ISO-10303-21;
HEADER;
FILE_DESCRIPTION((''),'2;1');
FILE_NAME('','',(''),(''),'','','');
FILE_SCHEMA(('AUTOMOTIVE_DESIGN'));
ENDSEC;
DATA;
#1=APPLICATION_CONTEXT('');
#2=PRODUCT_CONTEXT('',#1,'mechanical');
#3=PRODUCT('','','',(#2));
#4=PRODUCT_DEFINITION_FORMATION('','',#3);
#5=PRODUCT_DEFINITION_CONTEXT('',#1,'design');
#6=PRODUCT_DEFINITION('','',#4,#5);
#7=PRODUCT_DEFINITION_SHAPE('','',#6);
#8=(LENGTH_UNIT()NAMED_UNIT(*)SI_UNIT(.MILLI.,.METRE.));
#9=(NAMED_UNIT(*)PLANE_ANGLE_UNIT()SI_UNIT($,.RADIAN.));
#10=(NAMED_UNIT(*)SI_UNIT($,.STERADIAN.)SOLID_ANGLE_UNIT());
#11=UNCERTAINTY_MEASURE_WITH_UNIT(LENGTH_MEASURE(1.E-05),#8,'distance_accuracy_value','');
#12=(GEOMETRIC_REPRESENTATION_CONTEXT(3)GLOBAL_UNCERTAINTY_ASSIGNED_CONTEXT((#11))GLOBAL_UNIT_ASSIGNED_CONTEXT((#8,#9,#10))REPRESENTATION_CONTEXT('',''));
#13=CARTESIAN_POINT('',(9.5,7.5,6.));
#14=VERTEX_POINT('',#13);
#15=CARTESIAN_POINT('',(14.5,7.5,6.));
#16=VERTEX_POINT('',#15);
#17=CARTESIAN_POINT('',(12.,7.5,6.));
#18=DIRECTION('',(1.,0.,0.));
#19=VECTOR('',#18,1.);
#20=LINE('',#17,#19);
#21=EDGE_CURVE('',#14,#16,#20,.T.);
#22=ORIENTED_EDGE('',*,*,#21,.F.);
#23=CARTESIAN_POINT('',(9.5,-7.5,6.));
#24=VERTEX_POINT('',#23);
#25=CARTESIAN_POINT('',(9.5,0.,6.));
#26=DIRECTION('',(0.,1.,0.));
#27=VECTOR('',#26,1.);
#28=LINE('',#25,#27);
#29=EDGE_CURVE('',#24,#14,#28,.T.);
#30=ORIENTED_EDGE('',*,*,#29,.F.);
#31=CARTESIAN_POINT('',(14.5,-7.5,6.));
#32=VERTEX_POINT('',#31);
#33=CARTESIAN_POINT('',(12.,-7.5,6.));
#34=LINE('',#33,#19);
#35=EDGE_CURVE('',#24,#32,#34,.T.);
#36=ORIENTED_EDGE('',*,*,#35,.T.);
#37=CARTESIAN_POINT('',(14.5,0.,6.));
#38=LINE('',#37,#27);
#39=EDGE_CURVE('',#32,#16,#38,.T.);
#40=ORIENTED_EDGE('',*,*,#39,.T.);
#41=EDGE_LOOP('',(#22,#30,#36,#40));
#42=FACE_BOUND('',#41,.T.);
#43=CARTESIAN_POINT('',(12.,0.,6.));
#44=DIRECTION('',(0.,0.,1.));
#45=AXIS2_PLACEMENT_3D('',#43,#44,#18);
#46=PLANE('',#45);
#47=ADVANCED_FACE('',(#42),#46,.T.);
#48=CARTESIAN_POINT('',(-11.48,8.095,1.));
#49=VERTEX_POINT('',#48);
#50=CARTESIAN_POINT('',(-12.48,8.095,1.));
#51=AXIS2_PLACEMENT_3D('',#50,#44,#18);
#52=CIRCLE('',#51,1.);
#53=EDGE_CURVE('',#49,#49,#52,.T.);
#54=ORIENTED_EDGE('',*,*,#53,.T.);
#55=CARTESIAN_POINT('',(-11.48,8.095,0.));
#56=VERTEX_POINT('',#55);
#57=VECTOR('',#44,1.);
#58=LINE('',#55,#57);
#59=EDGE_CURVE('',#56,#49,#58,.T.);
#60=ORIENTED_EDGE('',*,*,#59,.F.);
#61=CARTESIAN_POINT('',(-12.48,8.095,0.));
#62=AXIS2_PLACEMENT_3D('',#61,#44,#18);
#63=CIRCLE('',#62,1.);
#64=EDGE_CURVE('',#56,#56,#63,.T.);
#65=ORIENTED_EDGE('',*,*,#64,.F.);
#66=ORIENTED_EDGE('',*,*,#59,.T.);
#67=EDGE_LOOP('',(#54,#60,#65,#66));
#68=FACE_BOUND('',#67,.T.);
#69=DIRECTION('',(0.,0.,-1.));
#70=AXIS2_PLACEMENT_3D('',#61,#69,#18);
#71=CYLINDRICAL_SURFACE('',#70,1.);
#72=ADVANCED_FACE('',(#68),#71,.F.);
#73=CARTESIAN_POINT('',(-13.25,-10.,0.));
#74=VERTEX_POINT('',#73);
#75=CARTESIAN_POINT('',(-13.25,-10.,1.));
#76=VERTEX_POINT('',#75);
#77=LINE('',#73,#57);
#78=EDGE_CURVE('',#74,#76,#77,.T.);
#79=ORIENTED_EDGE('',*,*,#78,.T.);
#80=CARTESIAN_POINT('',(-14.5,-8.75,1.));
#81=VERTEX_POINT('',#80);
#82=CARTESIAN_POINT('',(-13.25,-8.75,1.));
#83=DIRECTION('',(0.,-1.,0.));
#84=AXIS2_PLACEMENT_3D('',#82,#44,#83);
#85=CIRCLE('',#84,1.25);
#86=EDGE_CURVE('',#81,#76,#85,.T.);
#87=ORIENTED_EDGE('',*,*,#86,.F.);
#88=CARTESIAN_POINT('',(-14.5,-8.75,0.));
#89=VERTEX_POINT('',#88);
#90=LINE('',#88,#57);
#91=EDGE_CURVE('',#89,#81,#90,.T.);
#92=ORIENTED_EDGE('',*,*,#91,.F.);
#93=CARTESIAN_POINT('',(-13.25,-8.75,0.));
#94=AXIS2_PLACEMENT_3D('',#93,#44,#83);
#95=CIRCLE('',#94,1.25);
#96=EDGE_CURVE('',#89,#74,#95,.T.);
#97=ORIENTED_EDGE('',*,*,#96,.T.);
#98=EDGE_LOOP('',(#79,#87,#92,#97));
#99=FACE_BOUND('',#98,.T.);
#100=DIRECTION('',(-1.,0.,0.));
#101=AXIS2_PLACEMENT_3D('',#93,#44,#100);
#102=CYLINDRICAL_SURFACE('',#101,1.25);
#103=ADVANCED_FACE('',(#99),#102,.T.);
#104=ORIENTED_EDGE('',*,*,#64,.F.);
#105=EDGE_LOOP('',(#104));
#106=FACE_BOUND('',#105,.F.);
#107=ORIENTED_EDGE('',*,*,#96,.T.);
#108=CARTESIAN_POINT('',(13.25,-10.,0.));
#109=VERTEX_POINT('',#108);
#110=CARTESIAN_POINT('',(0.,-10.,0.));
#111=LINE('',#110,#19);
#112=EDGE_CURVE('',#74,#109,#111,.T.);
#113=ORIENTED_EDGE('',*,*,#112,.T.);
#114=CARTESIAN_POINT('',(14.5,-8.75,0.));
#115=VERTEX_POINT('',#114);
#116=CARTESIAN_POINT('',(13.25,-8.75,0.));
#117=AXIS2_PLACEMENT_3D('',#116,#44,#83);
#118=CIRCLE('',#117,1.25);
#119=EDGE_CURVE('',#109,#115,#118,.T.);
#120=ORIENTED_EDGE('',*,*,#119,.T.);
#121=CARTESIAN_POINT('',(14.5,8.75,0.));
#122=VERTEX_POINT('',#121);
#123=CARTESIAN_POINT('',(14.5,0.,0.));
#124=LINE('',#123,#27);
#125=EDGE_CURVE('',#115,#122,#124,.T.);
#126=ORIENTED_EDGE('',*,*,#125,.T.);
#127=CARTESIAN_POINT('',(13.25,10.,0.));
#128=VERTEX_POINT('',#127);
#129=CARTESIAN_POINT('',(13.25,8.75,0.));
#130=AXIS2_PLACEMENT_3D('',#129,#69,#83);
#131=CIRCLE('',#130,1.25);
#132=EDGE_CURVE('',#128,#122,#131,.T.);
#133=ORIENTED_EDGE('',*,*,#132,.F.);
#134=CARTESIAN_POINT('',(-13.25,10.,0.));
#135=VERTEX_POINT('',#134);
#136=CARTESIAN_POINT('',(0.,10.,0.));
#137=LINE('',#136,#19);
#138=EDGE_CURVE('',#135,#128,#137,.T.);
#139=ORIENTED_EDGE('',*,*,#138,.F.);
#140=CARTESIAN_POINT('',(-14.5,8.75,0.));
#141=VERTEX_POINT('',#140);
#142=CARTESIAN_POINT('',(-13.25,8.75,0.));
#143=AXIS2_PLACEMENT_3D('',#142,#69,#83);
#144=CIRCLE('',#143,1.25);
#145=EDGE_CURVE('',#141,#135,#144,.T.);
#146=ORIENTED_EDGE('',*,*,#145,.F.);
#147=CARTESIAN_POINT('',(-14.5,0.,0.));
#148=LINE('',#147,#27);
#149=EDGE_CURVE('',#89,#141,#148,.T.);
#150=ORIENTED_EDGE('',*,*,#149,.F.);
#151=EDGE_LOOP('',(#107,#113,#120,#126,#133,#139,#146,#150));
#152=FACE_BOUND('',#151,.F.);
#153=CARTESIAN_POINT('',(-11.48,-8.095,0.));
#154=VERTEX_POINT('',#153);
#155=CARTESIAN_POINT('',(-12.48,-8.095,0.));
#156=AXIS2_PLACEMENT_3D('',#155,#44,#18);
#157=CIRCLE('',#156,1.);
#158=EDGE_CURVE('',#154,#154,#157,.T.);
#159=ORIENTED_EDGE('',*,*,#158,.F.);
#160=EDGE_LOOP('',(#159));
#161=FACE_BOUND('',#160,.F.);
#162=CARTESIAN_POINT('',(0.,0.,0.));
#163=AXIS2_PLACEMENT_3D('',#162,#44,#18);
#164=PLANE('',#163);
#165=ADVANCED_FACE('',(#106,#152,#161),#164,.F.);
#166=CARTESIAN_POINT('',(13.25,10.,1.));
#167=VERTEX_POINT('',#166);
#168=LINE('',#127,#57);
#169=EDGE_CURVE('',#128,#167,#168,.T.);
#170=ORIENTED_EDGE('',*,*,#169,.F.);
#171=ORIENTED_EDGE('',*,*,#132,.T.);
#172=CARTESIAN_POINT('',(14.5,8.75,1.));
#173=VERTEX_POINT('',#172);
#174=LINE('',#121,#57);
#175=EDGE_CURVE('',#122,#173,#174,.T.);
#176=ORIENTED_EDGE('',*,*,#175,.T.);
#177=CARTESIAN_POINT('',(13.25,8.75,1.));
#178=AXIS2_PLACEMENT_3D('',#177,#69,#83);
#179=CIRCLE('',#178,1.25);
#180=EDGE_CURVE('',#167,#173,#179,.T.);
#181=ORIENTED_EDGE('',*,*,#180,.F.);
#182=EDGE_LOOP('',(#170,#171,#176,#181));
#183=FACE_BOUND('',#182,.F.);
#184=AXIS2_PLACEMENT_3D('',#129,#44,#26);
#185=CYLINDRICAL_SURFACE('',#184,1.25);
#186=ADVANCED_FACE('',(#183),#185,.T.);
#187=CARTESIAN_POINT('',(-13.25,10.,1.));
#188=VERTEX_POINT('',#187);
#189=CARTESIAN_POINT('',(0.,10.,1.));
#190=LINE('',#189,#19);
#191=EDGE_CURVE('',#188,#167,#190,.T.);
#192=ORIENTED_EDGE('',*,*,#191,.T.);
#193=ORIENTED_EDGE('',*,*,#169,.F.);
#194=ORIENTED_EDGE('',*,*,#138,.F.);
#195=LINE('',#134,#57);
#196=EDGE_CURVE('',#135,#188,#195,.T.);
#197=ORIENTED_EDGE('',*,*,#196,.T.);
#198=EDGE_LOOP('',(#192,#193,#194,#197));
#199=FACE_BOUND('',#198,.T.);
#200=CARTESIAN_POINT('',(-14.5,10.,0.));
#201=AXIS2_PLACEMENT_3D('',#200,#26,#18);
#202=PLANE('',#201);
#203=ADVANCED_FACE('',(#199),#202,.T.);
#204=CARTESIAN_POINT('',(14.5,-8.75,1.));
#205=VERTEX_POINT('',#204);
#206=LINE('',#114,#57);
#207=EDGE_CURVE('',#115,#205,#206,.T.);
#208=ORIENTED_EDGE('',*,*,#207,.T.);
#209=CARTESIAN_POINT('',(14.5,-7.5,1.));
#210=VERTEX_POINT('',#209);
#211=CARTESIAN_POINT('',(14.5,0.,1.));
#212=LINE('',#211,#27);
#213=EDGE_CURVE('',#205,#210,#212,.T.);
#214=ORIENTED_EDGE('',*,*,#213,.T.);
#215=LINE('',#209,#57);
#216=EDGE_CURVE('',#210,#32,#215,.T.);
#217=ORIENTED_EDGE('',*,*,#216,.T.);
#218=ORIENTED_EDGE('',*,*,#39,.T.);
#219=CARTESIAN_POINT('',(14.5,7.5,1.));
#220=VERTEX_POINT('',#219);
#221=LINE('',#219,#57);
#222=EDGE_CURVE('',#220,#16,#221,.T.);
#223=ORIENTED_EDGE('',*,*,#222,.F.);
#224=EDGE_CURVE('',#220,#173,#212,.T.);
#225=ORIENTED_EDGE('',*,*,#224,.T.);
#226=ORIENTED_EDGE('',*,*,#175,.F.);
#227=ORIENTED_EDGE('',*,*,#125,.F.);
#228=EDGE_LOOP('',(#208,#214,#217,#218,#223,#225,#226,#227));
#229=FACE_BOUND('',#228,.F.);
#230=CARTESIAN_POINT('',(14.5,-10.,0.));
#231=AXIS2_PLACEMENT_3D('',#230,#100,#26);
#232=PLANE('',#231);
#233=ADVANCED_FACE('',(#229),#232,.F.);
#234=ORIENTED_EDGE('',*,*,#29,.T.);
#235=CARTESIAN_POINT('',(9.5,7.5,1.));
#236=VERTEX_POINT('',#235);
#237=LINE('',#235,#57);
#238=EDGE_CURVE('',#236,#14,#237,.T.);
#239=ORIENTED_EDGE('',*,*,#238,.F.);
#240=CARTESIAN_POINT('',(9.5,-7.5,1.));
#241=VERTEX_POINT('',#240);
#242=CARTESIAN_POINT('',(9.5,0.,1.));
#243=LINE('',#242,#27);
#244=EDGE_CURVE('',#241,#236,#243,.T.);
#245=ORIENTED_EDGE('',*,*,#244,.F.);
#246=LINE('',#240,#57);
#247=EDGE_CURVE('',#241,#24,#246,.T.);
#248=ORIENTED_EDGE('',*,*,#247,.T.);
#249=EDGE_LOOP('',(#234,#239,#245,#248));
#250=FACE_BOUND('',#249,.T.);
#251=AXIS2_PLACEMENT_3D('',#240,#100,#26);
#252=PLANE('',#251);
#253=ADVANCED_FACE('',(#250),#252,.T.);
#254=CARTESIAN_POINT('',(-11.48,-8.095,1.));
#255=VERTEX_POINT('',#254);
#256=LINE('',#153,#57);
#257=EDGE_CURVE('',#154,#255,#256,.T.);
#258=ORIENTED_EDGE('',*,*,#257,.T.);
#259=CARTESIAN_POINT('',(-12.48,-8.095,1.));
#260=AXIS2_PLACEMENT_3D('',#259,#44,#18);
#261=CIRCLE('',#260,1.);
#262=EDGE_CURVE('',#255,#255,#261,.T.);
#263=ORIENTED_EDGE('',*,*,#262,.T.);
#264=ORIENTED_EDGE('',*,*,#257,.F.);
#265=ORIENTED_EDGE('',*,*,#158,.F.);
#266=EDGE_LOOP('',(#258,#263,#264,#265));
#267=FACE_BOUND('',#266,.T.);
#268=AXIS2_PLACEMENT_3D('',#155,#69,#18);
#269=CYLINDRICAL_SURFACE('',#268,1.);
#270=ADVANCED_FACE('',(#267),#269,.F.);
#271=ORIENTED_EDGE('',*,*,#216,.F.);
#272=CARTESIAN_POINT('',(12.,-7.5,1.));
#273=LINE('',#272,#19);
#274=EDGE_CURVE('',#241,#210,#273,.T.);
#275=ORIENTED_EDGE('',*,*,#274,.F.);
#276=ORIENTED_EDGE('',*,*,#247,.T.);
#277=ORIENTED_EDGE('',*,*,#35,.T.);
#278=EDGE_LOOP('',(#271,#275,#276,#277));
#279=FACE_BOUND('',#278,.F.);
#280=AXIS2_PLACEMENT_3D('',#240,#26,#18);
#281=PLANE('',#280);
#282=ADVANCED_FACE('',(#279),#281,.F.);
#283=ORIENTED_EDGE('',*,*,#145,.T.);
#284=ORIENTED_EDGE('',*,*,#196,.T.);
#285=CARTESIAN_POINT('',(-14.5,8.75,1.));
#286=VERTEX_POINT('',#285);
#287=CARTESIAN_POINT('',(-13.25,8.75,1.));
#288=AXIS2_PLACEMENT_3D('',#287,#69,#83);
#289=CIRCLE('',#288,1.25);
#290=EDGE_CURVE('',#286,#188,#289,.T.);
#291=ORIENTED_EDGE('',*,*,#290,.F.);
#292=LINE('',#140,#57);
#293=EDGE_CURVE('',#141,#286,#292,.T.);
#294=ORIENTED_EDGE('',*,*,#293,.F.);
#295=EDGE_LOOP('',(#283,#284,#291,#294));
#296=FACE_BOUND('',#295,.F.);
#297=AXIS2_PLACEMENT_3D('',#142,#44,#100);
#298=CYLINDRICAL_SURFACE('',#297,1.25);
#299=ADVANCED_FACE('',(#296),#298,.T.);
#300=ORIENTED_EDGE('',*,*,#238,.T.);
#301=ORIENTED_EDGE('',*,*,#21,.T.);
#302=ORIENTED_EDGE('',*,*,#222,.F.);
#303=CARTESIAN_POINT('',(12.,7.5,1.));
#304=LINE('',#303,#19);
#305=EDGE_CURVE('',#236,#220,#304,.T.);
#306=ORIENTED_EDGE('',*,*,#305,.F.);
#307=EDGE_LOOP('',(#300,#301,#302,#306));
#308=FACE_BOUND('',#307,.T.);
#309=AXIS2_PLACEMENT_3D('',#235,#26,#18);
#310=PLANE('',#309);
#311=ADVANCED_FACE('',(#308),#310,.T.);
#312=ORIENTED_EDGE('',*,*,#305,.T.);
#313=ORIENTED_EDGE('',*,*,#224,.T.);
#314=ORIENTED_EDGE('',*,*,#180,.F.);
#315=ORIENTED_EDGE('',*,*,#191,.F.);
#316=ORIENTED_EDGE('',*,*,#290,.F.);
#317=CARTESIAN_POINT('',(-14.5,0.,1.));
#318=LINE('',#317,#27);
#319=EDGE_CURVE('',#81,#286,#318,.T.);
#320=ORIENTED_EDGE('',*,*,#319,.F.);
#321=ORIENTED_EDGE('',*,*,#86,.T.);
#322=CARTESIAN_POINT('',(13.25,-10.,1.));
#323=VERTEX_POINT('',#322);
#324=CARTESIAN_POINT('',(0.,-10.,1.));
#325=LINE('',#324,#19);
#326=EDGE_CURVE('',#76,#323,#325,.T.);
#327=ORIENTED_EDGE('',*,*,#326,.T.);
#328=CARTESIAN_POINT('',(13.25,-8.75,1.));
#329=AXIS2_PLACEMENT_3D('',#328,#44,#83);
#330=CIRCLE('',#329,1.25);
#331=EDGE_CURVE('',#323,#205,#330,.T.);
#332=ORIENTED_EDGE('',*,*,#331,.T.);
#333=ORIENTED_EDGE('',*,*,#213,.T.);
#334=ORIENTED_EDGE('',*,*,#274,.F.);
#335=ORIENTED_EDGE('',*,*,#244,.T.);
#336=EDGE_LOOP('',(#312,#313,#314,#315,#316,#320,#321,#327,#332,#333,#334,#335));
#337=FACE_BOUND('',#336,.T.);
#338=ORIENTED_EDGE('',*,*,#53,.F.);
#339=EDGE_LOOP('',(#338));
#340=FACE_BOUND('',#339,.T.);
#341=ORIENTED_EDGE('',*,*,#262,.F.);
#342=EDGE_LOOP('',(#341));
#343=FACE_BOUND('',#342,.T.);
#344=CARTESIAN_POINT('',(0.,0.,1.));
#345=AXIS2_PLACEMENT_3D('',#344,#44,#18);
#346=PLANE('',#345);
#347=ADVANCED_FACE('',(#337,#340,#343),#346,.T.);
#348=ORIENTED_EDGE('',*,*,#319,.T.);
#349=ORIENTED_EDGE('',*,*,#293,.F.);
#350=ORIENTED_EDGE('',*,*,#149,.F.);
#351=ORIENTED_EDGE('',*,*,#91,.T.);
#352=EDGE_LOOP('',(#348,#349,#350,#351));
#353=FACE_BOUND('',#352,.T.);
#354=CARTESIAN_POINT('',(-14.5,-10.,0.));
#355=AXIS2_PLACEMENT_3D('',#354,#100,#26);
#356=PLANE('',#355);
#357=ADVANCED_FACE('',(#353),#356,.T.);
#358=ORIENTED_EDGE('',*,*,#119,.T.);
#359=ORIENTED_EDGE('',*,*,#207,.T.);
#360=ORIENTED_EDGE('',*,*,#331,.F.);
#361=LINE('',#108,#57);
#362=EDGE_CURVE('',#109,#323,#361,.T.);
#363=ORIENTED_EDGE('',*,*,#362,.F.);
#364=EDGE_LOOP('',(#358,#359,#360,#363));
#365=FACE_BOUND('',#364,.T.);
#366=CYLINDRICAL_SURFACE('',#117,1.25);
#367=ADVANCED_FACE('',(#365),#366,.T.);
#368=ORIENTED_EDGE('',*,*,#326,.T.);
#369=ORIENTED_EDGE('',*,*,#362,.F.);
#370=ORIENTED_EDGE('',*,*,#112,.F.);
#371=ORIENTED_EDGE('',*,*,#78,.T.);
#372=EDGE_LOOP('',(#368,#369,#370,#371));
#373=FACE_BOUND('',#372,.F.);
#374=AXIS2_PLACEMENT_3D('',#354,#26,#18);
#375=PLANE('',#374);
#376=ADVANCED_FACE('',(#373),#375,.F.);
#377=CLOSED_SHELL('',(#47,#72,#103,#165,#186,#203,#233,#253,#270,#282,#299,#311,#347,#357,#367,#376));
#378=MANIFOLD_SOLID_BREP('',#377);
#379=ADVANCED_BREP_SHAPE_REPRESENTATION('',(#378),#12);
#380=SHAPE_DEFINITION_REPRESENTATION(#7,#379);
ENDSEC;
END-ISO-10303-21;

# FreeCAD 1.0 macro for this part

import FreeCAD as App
import Part
import Sketcher
from FreeCAD import Vector


def edges_at(feature, points):
    """Names of the edges that pass closest to the given points."""
    edges = feature.Shape.Edges
    near = lambda p: min(range(len(edges)), key=lambda i: edges[i].distToShape(Part.Vertex(*p))[0])
    return sorted({f"Edge{near(p) + 1}" for p in points})

doc = App.newDocument("Part")
body = doc.addObject("PartDesign::Body", "Body")

# Sketch on XY plane
sketch1 = body.newObject("Sketcher::SketchObject", "Sketch")
sketch1.AttachmentSupport = (doc.getObject("XY_Plane"), [""])
sketch1.MapMode = "FlatFace"
sketch1.addGeometry(Part.LineSegment(Vector(-14.5, 10, 0), Vector(-14.5, -10, 0)), False)
sketch1.addGeometry(Part.LineSegment(Vector(-14.5, -10, 0), Vector(14.5, -10, 0)), False)
sketch1.addGeometry(Part.LineSegment(Vector(14.5, -10, 0), Vector(14.5, 10, 0)), False)
sketch1.addGeometry(Part.LineSegment(Vector(14.5, 10, 0), Vector(-14.5, 10, 0)), False)
sketch1.addGeometry(Part.Circle(Vector(-12.5, -8.1, 0), Vector(0, 0, 1), 1), False)
sketch1.addGeometry(Part.Circle(Vector(-12.5, 8.1, 0), Vector(0, 0, 1), 1), False)
sketch1.addConstraint(Sketcher.Constraint("Coincident", 0, 2, 1, 1))
sketch1.addConstraint(Sketcher.Constraint("Coincident", 1, 2, 2, 1))
sketch1.addConstraint(Sketcher.Constraint("Coincident", 2, 2, 3, 1))
sketch1.addConstraint(Sketcher.Constraint("Coincident", 3, 2, 0, 1))
sketch1.addConstraint(Sketcher.Constraint("Vertical", 0))
sketch1.addConstraint(Sketcher.Constraint("Horizontal", 1))
sketch1.addConstraint(Sketcher.Constraint("Vertical", 2))
sketch1.addConstraint(Sketcher.Constraint("Horizontal", 3))
sketch1.addConstraint(Sketcher.Constraint("Equal", 4, 5))
sketch1.addConstraint(Sketcher.Constraint("Symmetric", 0, 2, 2, 2, -1, 1))
sketch1.addConstraint(Sketcher.Constraint("Symmetric", 4, 3, 5, 3, -1))
sketch1.addConstraint(Sketcher.Constraint("Diameter", 4, 2.0))
sketch1.addConstraint(Sketcher.Constraint("DistanceX", 1, 1, 1, 2, 29.0))
sketch1.addConstraint(Sketcher.Constraint("DistanceY", 0, 2, 0, 1, 20.0))
sketch1.addConstraint(Sketcher.Constraint("DistanceX", 4, 3, -1, 1, 12.48))
sketch1.addConstraint(Sketcher.Constraint("DistanceY", 4, 3, 5, 3, 16.19))
pad1 = body.newObject("PartDesign::Pad", "Pad")
pad1.Profile = sketch1
pad1.Length = 1
doc.recompute()

fillet = body.newObject("PartDesign::Fillet", "Fillet")
fillet.Base = (pad1, edges_at(pad1, [
    (14.5, -10, 0.5),
    (14.5, 10, 0.5),
    (-14.5, -10, 0.5),
    (-14.5, 10, 0.5),
]))
fillet.Radius = 1.25

# Sketch on XY plane
sketch2 = body.newObject("Sketcher::SketchObject", "Sketch001")
sketch2.AttachmentSupport = (doc.getObject("XY_Plane"), [""])
sketch2.MapMode = "FlatFace"
sketch2.AttachmentOffset = App.Placement(Vector(0, 0, 1), App.Rotation())
sketch2.addGeometry(Part.LineSegment(Vector(10, 8, 0), Vector(10, -8, 0)), False)
sketch2.addGeometry(Part.LineSegment(Vector(10, -8, 0), Vector(14, -8, 0)), False)
sketch2.addGeometry(Part.LineSegment(Vector(14, -8, 0), Vector(14, 8, 0)), False)
sketch2.addGeometry(Part.LineSegment(Vector(14, 8, 0), Vector(10, 8, 0)), False)
sketch2.addConstraint(Sketcher.Constraint("Coincident", 0, 2, 1, 1))
sketch2.addConstraint(Sketcher.Constraint("Coincident", 1, 2, 2, 1))
sketch2.addConstraint(Sketcher.Constraint("Coincident", 2, 2, 3, 1))
sketch2.addConstraint(Sketcher.Constraint("Coincident", 3, 2, 0, 1))
sketch2.addConstraint(Sketcher.Constraint("Vertical", 0))
sketch2.addConstraint(Sketcher.Constraint("Horizontal", 1))
sketch2.addConstraint(Sketcher.Constraint("Vertical", 2))
sketch2.addConstraint(Sketcher.Constraint("Horizontal", 3))
sketch2.addConstraint(Sketcher.Constraint("DistanceX", 1, 1, 1, 2, 5.0))
sketch2.addConstraint(Sketcher.Constraint("DistanceY", 0, 2, 0, 1, 15.0))
sketch2.addConstraint(Sketcher.Constraint("DistanceX", -1, 1, 0, 2, 9.5))
sketch2.addConstraint(Sketcher.Constraint("DistanceY", 0, 2, -1, 1, 7.5))
pad2 = body.newObject("PartDesign::Pad", "Pad001")
pad2.Profile = sketch2
pad2.Length = 5

doc.recompute()
